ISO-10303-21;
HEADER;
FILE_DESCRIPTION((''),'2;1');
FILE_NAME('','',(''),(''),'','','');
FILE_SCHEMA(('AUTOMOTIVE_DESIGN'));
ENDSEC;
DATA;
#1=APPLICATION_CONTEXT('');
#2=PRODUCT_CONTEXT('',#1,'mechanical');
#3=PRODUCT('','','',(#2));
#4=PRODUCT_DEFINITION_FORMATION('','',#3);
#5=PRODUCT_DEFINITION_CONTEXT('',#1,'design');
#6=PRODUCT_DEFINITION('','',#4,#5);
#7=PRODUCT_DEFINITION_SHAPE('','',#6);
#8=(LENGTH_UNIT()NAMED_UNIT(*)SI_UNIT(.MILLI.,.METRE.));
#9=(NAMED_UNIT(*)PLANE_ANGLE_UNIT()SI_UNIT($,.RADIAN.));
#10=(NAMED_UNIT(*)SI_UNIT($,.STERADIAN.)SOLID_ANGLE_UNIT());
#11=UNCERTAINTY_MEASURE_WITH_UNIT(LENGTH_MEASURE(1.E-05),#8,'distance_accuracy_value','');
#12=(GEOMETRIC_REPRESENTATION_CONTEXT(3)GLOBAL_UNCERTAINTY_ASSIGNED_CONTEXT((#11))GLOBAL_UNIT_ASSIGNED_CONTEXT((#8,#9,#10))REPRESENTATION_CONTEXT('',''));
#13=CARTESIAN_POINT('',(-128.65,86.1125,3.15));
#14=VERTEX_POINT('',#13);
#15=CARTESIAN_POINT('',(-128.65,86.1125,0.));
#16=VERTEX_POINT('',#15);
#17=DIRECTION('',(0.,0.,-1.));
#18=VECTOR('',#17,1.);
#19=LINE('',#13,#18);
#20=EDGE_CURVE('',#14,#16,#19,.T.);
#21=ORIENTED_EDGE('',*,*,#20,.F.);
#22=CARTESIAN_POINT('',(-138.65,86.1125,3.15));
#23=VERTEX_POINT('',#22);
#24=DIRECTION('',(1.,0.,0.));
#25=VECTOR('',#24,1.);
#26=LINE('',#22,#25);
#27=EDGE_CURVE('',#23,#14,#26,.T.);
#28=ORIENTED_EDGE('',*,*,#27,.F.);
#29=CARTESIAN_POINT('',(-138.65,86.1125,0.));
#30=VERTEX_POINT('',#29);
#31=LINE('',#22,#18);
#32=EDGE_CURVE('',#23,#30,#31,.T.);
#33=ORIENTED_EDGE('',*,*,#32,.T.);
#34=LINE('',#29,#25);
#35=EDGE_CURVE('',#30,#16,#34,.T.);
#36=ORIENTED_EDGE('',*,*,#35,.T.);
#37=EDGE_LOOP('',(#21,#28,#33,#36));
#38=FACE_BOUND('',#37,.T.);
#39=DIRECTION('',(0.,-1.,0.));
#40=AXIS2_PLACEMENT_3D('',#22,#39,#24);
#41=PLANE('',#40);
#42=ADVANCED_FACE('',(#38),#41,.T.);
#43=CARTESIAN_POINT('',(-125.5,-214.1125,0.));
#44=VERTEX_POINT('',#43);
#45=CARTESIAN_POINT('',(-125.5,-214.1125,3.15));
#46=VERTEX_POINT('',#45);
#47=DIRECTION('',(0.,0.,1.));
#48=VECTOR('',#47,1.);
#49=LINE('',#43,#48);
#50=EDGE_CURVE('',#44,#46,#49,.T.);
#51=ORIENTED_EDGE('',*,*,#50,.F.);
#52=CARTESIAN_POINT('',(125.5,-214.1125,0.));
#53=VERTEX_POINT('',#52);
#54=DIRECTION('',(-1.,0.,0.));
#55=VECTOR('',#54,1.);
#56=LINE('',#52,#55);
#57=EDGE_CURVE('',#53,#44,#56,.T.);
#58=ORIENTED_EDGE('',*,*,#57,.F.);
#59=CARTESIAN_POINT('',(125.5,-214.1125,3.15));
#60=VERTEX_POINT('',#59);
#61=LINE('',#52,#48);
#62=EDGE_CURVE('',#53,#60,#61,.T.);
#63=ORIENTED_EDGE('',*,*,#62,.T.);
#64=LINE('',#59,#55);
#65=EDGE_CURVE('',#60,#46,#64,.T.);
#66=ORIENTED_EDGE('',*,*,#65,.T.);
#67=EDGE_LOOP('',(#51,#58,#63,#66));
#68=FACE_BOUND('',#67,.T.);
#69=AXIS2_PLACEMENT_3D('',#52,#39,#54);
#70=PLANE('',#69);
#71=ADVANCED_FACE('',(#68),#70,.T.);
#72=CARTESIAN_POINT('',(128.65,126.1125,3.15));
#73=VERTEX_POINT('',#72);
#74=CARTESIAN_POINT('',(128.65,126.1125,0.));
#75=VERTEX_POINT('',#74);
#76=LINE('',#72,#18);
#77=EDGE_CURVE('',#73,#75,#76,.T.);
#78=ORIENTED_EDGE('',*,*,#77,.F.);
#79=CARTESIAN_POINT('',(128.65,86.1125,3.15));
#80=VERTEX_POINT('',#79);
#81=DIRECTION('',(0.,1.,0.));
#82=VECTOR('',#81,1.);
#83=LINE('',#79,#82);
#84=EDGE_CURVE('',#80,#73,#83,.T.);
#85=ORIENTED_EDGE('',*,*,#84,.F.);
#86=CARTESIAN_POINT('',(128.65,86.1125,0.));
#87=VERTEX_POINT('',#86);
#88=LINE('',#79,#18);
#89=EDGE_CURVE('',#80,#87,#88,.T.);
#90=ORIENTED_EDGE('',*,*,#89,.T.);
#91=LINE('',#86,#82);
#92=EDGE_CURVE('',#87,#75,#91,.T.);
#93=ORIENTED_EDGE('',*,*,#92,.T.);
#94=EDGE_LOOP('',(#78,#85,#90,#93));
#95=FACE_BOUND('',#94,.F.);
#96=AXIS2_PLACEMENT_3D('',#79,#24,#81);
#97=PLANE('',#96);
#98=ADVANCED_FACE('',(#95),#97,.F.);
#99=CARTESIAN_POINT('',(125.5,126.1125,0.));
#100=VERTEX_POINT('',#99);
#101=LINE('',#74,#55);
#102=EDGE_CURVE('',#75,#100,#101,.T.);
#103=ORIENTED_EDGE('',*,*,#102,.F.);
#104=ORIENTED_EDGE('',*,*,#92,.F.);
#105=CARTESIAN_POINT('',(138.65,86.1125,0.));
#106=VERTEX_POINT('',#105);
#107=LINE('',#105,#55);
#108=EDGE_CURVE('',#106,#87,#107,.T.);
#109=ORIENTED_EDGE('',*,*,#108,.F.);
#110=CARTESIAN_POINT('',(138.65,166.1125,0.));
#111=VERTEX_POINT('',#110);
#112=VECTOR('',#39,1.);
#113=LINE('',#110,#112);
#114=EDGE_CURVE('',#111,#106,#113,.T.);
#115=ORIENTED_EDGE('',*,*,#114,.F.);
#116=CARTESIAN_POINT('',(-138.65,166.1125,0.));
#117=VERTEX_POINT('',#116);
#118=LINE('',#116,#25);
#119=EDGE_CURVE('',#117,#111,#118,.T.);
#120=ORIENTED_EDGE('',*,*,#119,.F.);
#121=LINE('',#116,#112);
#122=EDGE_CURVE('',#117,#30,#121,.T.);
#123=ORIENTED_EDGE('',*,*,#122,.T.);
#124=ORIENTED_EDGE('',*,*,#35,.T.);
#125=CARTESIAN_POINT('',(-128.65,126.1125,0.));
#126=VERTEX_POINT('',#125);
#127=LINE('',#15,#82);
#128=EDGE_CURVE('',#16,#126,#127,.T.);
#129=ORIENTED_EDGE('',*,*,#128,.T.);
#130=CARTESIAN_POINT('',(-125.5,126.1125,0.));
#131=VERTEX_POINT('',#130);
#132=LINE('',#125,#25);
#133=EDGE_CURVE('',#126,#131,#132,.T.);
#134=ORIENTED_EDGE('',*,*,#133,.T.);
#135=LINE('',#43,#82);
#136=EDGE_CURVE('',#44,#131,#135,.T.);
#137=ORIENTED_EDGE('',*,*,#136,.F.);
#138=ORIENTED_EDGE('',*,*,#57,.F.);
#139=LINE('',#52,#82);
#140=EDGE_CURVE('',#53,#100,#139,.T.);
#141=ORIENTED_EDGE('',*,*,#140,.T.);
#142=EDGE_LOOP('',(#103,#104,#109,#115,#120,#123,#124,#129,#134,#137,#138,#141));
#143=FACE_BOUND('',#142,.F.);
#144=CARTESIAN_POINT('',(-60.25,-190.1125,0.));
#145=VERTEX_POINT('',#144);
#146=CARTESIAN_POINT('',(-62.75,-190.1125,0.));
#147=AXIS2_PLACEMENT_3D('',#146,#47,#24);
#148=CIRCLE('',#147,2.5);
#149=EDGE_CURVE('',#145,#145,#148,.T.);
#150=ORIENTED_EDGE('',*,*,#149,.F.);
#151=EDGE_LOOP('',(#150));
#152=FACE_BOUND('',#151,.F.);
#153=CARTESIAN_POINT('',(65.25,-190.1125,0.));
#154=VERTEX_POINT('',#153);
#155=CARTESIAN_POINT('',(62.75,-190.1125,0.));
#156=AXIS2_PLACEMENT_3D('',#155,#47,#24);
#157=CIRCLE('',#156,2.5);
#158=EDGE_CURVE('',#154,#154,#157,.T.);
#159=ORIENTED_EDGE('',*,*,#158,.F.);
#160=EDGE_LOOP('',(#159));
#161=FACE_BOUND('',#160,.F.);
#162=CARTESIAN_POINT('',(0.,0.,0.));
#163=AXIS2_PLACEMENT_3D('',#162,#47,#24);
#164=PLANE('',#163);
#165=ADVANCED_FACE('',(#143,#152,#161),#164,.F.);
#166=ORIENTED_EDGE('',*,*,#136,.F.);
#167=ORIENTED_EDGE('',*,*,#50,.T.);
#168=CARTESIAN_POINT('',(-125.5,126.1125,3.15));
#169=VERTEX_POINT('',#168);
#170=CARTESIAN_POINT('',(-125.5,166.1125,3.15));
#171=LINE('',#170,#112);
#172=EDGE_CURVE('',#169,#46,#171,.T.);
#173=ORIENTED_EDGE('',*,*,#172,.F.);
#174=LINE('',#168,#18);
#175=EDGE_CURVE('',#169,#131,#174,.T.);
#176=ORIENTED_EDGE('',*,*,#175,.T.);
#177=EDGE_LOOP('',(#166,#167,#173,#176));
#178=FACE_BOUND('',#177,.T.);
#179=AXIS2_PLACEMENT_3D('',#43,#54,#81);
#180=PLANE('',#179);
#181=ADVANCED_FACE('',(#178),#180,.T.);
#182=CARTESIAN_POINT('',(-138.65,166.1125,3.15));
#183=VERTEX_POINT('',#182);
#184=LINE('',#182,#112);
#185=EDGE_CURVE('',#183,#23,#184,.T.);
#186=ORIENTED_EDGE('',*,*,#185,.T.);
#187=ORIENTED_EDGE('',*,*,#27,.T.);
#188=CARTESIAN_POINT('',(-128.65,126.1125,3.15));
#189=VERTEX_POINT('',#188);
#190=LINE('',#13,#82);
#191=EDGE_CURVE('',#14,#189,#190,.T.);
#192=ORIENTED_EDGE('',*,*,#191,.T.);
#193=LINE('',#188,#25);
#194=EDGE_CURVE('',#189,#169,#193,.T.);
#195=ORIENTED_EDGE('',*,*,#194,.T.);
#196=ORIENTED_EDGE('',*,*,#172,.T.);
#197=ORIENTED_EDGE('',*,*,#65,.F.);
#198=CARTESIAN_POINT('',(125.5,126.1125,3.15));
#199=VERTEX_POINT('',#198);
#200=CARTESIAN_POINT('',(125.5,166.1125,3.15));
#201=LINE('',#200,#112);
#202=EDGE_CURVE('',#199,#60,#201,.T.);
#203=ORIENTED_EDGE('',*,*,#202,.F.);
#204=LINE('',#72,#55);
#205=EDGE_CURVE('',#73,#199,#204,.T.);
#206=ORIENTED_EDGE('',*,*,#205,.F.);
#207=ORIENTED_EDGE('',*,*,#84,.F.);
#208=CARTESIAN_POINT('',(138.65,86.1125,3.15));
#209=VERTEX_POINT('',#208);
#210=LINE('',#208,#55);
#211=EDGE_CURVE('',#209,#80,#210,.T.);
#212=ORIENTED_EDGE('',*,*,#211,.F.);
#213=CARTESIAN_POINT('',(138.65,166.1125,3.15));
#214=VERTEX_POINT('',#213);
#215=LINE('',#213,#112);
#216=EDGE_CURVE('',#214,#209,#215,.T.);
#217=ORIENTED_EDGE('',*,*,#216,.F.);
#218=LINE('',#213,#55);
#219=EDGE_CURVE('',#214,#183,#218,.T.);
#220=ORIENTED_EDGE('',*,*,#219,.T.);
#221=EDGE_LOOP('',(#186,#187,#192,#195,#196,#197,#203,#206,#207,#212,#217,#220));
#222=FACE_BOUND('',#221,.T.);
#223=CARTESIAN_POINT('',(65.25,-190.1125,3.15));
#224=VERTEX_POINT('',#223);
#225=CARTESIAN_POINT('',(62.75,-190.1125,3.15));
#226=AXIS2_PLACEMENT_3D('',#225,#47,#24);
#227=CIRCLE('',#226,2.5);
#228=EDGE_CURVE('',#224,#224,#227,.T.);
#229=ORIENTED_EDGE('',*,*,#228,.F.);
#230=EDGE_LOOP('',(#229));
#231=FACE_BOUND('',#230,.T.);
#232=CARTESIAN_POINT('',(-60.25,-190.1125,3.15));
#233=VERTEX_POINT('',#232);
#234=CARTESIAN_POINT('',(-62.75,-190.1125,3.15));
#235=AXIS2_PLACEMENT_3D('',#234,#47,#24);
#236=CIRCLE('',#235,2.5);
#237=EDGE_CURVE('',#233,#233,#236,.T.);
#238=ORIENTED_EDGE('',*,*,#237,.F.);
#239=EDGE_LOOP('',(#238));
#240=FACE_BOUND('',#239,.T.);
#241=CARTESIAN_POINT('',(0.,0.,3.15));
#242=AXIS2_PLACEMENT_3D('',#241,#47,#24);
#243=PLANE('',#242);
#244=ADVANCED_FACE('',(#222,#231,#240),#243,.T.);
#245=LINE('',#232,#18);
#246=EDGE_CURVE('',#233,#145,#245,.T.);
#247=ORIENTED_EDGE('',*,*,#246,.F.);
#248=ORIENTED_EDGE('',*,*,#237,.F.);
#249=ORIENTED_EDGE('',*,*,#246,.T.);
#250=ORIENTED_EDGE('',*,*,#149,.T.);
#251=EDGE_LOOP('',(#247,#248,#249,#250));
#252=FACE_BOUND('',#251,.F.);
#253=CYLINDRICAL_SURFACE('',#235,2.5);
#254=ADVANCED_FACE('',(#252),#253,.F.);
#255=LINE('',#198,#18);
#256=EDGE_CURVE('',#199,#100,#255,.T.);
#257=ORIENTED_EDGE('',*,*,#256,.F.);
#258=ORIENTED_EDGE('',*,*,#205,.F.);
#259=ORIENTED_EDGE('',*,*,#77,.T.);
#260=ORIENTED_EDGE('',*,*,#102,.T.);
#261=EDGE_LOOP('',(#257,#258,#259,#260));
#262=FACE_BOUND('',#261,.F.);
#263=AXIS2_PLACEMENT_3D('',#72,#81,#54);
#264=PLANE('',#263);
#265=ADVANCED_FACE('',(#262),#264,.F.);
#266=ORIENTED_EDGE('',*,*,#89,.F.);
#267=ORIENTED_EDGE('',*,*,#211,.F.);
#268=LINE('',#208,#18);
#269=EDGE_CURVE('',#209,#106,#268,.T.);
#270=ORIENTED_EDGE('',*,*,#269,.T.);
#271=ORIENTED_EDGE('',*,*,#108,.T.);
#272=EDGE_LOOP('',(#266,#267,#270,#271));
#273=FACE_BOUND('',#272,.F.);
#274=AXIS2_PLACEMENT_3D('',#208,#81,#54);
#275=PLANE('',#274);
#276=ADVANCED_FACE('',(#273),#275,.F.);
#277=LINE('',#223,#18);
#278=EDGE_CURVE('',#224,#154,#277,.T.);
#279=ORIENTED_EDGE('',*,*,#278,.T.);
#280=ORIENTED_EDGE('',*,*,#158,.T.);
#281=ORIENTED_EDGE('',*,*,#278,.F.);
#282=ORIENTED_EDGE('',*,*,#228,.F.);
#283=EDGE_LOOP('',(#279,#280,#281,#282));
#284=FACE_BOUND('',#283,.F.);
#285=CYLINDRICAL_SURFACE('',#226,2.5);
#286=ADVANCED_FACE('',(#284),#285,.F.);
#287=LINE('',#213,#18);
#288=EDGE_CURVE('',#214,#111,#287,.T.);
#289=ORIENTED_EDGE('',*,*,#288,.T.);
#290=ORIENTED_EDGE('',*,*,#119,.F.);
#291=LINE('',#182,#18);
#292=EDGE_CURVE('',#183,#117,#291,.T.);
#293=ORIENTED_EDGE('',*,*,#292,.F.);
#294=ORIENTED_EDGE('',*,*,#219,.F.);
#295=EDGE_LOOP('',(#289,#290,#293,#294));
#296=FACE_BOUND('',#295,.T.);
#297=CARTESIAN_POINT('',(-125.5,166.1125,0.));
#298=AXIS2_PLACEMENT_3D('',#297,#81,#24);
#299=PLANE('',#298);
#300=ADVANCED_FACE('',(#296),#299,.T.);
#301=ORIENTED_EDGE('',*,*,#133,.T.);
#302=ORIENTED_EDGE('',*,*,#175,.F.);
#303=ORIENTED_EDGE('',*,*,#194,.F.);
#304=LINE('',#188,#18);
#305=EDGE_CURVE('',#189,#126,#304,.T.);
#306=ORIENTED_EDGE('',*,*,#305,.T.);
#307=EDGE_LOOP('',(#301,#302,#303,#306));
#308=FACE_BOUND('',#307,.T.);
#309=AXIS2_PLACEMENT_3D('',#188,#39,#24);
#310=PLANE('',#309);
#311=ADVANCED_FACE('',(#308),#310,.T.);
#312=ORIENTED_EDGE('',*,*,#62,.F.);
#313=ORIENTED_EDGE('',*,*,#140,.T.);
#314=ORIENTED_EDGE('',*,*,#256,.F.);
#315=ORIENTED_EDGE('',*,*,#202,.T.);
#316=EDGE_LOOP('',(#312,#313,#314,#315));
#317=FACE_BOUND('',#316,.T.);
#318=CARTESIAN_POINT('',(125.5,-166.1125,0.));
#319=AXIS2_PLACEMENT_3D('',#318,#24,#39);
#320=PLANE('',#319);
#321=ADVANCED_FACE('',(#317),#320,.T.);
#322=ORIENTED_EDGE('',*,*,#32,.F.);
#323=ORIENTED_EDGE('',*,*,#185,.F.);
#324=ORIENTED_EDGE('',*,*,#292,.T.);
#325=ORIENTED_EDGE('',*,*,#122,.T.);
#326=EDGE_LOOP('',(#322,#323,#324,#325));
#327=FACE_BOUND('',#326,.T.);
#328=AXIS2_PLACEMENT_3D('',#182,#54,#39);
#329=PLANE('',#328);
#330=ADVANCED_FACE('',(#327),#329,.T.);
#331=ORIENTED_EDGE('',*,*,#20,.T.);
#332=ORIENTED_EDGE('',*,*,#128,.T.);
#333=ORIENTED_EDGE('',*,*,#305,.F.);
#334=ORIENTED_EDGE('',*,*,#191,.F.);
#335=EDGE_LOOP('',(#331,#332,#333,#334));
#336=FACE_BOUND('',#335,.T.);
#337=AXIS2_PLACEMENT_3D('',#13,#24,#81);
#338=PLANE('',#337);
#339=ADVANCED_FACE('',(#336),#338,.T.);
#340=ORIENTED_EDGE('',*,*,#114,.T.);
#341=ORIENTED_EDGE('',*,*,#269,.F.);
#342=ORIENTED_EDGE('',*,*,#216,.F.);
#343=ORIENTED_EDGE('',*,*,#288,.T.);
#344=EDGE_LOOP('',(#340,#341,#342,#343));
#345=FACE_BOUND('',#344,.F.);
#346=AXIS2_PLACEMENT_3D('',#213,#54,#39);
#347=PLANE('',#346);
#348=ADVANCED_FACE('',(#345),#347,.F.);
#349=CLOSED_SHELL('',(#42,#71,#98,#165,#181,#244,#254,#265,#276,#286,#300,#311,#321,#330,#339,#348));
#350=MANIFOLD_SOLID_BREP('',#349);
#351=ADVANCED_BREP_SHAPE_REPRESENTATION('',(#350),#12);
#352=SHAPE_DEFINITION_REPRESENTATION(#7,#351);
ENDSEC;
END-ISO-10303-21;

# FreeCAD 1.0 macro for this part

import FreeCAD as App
import Part
import Sketcher
from FreeCAD import Vector
Q = App.Units.Quantity

doc = App.newDocument("Part")
body = doc.addObject("PartDesign::Body", "Body")

# Sketch on XY plane
sketch1 = body.newObject("Sketcher::SketchObject", "Sketch")
sketch1.AttachmentSupport = (doc.getObject("XY_Plane"), [""])
sketch1.MapMode = "FlatFace"
sketch1.addGeometry([
    Part.LineSegment(Vector(126, -214, 0), Vector(126, 166, 0)),
    Part.LineSegment(Vector(126, 166, 0), Vector(-126, 166, 0)),
    Part.LineSegment(Vector(-126, 166, 0), Vector(-126, -214, 0)),
    Part.LineSegment(Vector(-126, -214, 0), Vector(126, -214, 0)),
], False)
sketch1.addConstraint([
    Sketcher.Constraint("Coincident", 0, 2, 1, 1),
    Sketcher.Constraint("Coincident", 1, 2, 2, 1),
    Sketcher.Constraint("Coincident", 2, 2, 3, 1),
    Sketcher.Constraint("Coincident", 3, 2, 0, 1),
    Sketcher.Constraint("Vertical", 0),
    Sketcher.Constraint("Horizontal", 1),
    Sketcher.Constraint("Vertical", 2),
    Sketcher.Constraint("Horizontal", 3),
    Sketcher.Constraint("DistanceX", 1, 2, 1, 1, Q("251 mm")),
    Sketcher.Constraint("DistanceX", -1, 1, 0, 2, Q("125.5 mm")),
    Sketcher.Constraint("DistanceY", 0, 1, 0, 2, Q("380.225 mm")),
    Sketcher.Constraint("DistanceY", -1, 1, 0, 2, Q("166.1125 mm")),
])
pad1 = body.newObject("PartDesign::Pad", "Pad")
pad1.Profile = sketch1
pad1.Length = 3.15

# Sketch on XY plane
sketch2 = body.newObject("Sketcher::SketchObject", "Sketch001")
sketch2.AttachmentSupport = (doc.getObject("XY_Plane"), [""])
sketch2.MapMode = "FlatFace"
sketch2.AttachmentOffset = App.Placement(Vector(0, 0, 3.15), App.Rotation())
sketch2.addGeometry([
    Part.LineSegment(Vector(-125.5, 126.1, 0), Vector(-125.5, 166.1, 0)),  # 0
    Part.LineSegment(Vector(-125.5, 166.1, 0), Vector(-138.7, 166.1, 0)),  # 1
    Part.LineSegment(Vector(-138.7, 166.1, 0), Vector(-138.7, 86.1, 0)),  # 2
    Part.LineSegment(Vector(-138.7, 86.1, 0), Vector(-128.7, 86.1, 0)),  # 3
    Part.LineSegment(Vector(-128.7, 86.1, 0), Vector(-128.7, 126.1, 0)),  # 4
    Part.LineSegment(Vector(-128.7, 126.1, 0), Vector(-125.5, 126.1, 0)),  # 5
    Part.LineSegment(Vector(138.7, 166.1, 0), Vector(125.5, 166.1, 0)),  # 6
    Part.LineSegment(Vector(125.5, 166.1, 0), Vector(125.5, 126.1, 0)),  # 7
    Part.LineSegment(Vector(125.5, 126.1, 0), Vector(128.7, 126.1, 0)),  # 8
    Part.LineSegment(Vector(128.7, 126.1, 0), Vector(128.7, 86.1, 0)),  # 9
    Part.LineSegment(Vector(128.7, 86.1, 0), Vector(138.7, 86.1, 0)),  # 10
    Part.LineSegment(Vector(138.7, 86.1, 0), Vector(138.7, 166.1, 0)),  # 11
], False)
sketch2.addConstraint([
    Sketcher.Constraint("Coincident", 0, 2, 1, 1),
    Sketcher.Constraint("Coincident", 1, 2, 2, 1),
    Sketcher.Constraint("Coincident", 2, 2, 3, 1),
    Sketcher.Constraint("Coincident", 3, 2, 4, 1),
    Sketcher.Constraint("Coincident", 4, 2, 5, 1),
    Sketcher.Constraint("Coincident", 5, 2, 0, 1),
    Sketcher.Constraint("Coincident", 6, 2, 7, 1),
    Sketcher.Constraint("Coincident", 7, 2, 8, 1),
    Sketcher.Constraint("Coincident", 8, 2, 9, 1),
    Sketcher.Constraint("Coincident", 9, 2, 10, 1),
    Sketcher.Constraint("Coincident", 10, 2, 11, 1),
    Sketcher.Constraint("Coincident", 11, 2, 6, 1),
    Sketcher.Constraint("Vertical", 0),
    Sketcher.Constraint("Horizontal", 1),
    Sketcher.Constraint("Vertical", 2),
    Sketcher.Constraint("Horizontal", 3),
    Sketcher.Constraint("Vertical", 4),
    Sketcher.Constraint("Horizontal", 5),
    Sketcher.Constraint("Horizontal", 6),
    Sketcher.Constraint("Vertical", 7),
    Sketcher.Constraint("Horizontal", 8),
    Sketcher.Constraint("Vertical", 9),
    Sketcher.Constraint("Horizontal", 10),
    Sketcher.Constraint("Vertical", 11),
    Sketcher.Constraint("Symmetric", 0, 2, 6, 2, -2),
    Sketcher.Constraint("Symmetric", 4, 2, 8, 2, -2),
    Sketcher.Constraint("Symmetric", 2, 2, 10, 2, -2),
    Sketcher.Constraint("Equal", 0, 4),
    Sketcher.Constraint("DistanceY", 0, 1, 0, 2, Q("40 mm")),
    Sketcher.Constraint("DistanceX", 1, 2, 1, 1, Q("13.15 mm")),
    Sketcher.Constraint("DistanceX", 5, 1, 5, 2, Q("3.15 mm")),
    Sketcher.Constraint("DistanceX", 0, 2, 6, 2, Q("251 mm")),
    Sketcher.Constraint("DistanceY", -1, 1, 0, 2, Q("166.1125 mm")),
])
pad2 = body.newObject("PartDesign::Pad", "Pad001")
pad2.Profile = sketch2
pad2.Length = 3.15
pad2.Reversed = True

# Sketch on XY plane
sketch3 = body.newObject("Sketcher::SketchObject", "Sketch002")
sketch3.AttachmentSupport = (doc.getObject("XY_Plane"), [""])
sketch3.MapMode = "FlatFace"
sketch3.AttachmentOffset = App.Placement(Vector(0, 0, 3.15), App.Rotation())
sketch3.addGeometry([
    Part.Circle(Vector(-62.8, -190.1, 0), Vector(0, 0, 1), 2.5),
    Part.Circle(Vector(62.8, -190.1, 0), Vector(0, 0, 1), 2.5),
], False)
sketch3.addConstraint([
    Sketcher.Constraint("Equal", 0, 1),
    Sketcher.Constraint("Symmetric", 0, 3, 1, 3, -2),
    Sketcher.Constraint("Diameter", 0, Q("5 mm")),
    Sketcher.Constraint("DistanceX", 0, 3, -1, 1, Q("62.75 mm")),
    Sketcher.Constraint("DistanceY", 0, 3, -1, 1, Q("190.1125 mm")),
])
pocket1 = body.newObject("PartDesign::Pocket", "Pocket")
pocket1.Profile = sketch3
pocket1.Length = 10

doc.recompute()
